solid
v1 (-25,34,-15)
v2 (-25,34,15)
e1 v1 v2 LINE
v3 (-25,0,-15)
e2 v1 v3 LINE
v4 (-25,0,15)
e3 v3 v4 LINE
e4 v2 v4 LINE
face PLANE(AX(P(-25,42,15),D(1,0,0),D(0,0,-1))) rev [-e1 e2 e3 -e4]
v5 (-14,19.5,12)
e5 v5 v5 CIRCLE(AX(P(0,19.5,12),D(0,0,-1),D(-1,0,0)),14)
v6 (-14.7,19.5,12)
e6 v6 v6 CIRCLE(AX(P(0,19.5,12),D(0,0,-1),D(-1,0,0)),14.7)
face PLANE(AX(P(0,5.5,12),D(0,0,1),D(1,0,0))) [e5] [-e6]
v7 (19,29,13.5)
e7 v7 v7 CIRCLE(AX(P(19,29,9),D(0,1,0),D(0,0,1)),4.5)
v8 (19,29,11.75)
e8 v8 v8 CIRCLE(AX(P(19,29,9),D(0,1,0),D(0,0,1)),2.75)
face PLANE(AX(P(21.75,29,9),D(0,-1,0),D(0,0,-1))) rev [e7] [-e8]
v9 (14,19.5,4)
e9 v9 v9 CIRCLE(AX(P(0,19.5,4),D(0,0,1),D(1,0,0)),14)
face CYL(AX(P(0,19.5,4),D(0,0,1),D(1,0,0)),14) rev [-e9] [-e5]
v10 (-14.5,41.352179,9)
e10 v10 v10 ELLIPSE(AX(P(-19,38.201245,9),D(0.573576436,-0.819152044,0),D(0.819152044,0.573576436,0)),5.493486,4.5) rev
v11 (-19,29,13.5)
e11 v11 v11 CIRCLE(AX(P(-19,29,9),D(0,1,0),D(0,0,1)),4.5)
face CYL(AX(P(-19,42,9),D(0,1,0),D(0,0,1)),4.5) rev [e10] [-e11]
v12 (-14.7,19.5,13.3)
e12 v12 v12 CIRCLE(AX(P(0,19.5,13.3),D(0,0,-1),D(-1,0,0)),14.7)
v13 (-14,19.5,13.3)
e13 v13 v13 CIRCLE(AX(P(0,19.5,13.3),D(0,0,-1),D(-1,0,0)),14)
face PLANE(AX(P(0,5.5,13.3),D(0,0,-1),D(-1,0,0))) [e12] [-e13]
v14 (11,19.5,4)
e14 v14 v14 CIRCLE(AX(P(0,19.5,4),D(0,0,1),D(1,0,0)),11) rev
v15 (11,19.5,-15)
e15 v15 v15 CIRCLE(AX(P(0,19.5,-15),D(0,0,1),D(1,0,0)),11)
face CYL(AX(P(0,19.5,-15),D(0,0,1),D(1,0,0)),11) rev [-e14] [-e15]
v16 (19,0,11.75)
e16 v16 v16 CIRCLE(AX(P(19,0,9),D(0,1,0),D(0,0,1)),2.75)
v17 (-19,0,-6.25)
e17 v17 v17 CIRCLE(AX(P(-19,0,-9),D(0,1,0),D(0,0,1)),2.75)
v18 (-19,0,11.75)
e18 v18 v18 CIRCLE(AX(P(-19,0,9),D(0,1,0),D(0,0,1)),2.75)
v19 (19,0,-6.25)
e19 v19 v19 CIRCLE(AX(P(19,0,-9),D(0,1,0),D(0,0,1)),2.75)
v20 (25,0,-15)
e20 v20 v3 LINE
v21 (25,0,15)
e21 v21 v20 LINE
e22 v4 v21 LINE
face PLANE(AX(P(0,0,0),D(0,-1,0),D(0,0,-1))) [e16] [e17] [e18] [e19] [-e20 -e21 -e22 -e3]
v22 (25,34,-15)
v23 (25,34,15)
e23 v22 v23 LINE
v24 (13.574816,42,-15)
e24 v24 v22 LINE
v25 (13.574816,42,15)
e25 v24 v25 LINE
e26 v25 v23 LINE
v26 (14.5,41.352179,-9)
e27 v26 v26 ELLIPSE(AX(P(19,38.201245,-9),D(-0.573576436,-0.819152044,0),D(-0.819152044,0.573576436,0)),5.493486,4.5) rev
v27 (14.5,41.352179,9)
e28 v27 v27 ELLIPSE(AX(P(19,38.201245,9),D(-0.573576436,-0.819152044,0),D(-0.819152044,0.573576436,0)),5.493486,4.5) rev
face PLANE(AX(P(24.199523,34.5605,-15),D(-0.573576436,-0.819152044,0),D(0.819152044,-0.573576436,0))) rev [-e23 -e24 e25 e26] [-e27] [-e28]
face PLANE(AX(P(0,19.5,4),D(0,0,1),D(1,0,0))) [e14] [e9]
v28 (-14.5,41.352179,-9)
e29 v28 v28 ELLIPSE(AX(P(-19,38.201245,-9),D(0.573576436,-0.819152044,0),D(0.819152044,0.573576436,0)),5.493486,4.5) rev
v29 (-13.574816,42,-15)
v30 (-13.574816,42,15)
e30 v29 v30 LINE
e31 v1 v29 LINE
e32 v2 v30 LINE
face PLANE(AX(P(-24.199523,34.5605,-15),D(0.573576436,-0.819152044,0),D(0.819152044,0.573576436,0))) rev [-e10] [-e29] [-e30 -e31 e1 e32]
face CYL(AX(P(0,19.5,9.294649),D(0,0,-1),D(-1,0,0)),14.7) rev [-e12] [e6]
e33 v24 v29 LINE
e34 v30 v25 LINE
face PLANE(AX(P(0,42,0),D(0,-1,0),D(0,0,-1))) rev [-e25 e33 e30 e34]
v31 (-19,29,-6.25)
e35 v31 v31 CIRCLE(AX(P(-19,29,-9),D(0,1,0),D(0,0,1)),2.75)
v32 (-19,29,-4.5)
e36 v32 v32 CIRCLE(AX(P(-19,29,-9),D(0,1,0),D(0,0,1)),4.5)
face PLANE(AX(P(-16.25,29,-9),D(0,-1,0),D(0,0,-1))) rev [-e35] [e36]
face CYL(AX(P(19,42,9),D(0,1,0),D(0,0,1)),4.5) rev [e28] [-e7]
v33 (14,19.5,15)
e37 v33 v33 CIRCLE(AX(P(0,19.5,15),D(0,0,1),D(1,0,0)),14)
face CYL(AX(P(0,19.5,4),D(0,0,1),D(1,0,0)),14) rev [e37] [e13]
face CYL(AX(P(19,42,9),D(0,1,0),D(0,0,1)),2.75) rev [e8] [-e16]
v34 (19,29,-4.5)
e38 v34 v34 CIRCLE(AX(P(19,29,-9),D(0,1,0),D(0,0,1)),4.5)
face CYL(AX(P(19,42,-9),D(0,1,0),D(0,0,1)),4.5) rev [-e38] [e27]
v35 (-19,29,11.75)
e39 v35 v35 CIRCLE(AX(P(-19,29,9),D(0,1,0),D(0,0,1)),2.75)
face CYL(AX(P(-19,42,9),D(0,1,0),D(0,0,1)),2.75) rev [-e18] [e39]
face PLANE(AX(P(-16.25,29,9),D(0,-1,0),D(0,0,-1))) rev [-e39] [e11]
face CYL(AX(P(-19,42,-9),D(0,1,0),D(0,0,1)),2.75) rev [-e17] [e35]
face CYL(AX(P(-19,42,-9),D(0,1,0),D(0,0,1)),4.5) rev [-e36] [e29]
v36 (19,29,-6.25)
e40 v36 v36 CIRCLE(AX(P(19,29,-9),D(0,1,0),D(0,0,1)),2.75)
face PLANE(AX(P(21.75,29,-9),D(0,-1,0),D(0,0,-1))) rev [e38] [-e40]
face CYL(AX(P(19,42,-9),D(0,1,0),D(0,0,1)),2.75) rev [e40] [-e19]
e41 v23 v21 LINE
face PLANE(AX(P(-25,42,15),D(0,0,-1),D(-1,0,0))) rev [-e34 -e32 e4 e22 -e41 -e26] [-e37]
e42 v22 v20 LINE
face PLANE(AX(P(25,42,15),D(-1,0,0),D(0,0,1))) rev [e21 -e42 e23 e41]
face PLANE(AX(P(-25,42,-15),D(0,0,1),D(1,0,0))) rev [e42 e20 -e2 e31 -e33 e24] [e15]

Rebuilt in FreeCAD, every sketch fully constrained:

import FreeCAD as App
import Part
import Sketcher
from FreeCAD import Vector
Q = App.Units.Quantity

doc = App.newDocument("Part")
body = doc.addObject("PartDesign::Body", "Body")

sketch1 = body.newObject("Sketcher::SketchObject", "Sketch")
sketch1.AttachmentSupport = (doc.getObject("XZ_Plane"), [""])
sketch1.MapMode = "FlatFace"
sketch1.addGeometry(Part.LineSegment(Vector(-25, -15, 0), Vector(-25, 15, 0)), False)
sketch1.addGeometry(Part.LineSegment(Vector(-25, 15, 0), Vector(25, 15, 0)), False)
sketch1.addGeometry(Part.LineSegment(Vector(25, 15, 0), Vector(25, -15, 0)), False)
sketch1.addGeometry(Part.LineSegment(Vector(25, -15, 0), Vector(-25, -15, 0)), False)
sketch1.addConstraint(Sketcher.Constraint("Coincident", 0, 2, 1, 1))
sketch1.addConstraint(Sketcher.Constraint("Coincident", 1, 2, 2, 1))
sketch1.addConstraint(Sketcher.Constraint("Coincident", 2, 2, 3, 1))
sketch1.addConstraint(Sketcher.Constraint("Coincident", 3, 2, 0, 1))
sketch1.addConstraint(Sketcher.Constraint("Vertical", 0))
sketch1.addConstraint(Sketcher.Constraint("Horizontal", 1))
sketch1.addConstraint(Sketcher.Constraint("Vertical", 2))
sketch1.addConstraint(Sketcher.Constraint("Horizontal", 3))
sketch1.addConstraint(Sketcher.Constraint("Symmetric", 0, 2, 2, 2, -1, 1))
sketch1.addConstraint(Sketcher.Constraint("DistanceX", 1, 1, 1, 2, 50.0))
sketch1.addConstraint(Sketcher.Constraint("DistanceY", 0, 1, 0, 2, 30.0))
pad1 = body.newObject("PartDesign::Pad", "Pad")
pad1.Profile = sketch1
pad1.Length = 42
pad1.Reversed = True

sketch2 = body.newObject("Sketcher::SketchObject", "Sketch001")
sketch2.AttachmentSupport = (doc.getObject("XY_Plane"), [""])
sketch2.MapMode = "FlatFace"
sketch2.AttachmentOffset = App.Placement(Vector(0, 0, 15), App.Rotation())
sketch2.addGeometry(Part.Circle(Vector(0, 20, 0), Vector(0, 0, 1), 11), False)
sketch2.addConstraint(Sketcher.Constraint("PointOnObject", 0, 3, -2))
sketch2.addConstraint(Sketcher.Constraint("Diameter", 0, 22.0))
sketch2.addConstraint(Sketcher.Constraint("DistanceY", -1, 1, 0, 3, 19.5))
pocket1 = body.newObject("PartDesign::Pocket", "Pocket")
pocket1.Profile = sketch2
pocket1.Type = "ThroughAll"

sketch3 = body.newObject("Sketcher::SketchObject", "Sketch002")
sketch3.AttachmentSupport = (doc.getObject("XY_Plane"), [""])
sketch3.MapMode = "FlatFace"
sketch3.AttachmentOffset = App.Placement(Vector(0, 0, 15), App.Rotation())
sketch3.addGeometry(Part.Circle(Vector(0, 20, 0), Vector(0, 0, 1), 14), False)
sketch3.addConstraint(Sketcher.Constraint("PointOnObject", 0, 3, -2))
sketch3.addConstraint(Sketcher.Constraint("Diameter", 0, 28.0))
sketch3.addConstraint(Sketcher.Constraint("DistanceY", -1, 1, 0, 3, 19.5))
pocket2 = body.newObject("PartDesign::Pocket", "Pocket001")
pocket2.Profile = sketch3
pocket2.Length = 11

sketch4 = body.newObject("Sketcher::SketchObject", "Sketch003")
sketch4.AttachmentSupport = (doc.getObject("XZ_Plane"), [""])
sketch4.MapMode = "FlatFace"
sketch4.AttachmentOffset = App.Placement(Vector(0, 0, -42), App.Rotation())
sketch4.addGeometry(Part.Circle(Vector(19, -9, 0), Vector(0, 0, 1), 2.8), False)
sketch4.addGeometry(Part.Circle(Vector(19, 9, 0), Vector(0, 0, 1), 2.8), False)
sketch4.addGeometry(Part.Circle(Vector(-19, 9, 0), Vector(0, 0, 1), 2.8), False)
sketch4.addGeometry(Part.Circle(Vector(-19, -9, 0), Vector(0, 0, 1), 2.8), False)
sketch4.addConstraint(Sketcher.Constraint("Equal", 0, 1))
sketch4.addConstraint(Sketcher.Constraint("Equal", 1, 2))
sketch4.addConstraint(Sketcher.Constraint("Equal", 2, 3))
sketch4.addConstraint(Sketcher.Constraint("Symmetric", 0, 3, 2, 3, -1, 1))
sketch4.addConstraint(Sketcher.Constraint("Symmetric", 1, 3, 3, 3, -1, 1))
sketch4.addConstraint(Sketcher.Constraint("Symmetric", 1, 3, 2, 3, -2))
sketch4.addConstraint(Sketcher.Constraint("Diameter", 0, 5.5))
sketch4.addConstraint(Sketcher.Constraint("DistanceX", -1, 1, 0, 3, 19.0))
sketch4.addConstraint(Sketcher.Constraint("DistanceY", 0, 3, -1, 1, 9.0))
doc.recompute()
hole = body.newObject("PartDesign::Hole", "Hole")
hole.Profile = sketch4
hole.ThreadType = "None"
hole.Diameter = 5.5
hole.DepthType = "ThroughAll"
hole.HoleCutType = "Counterbore"
hole.HoleCutDiameter = 9
hole.HoleCutDepth = 13
hole.Reversed = True

sketch5 = body.newObject("Sketcher::SketchObject", "Sketch004")
sketch5.AttachmentSupport = (doc.getObject("YZ_Plane"), [""])
sketch5.MapMode = "FlatFace"
sketch5.addGeometry(Part.LineSegment(Vector(5.5, 13.3, 0), Vector(4.8, 13.3, 0)), False)
sketch5.addGeometry(Part.LineSegment(Vector(4.8, 13.3, 0), Vector(4.8, 12, 0)), False)
sketch5.addGeometry(Part.LineSegment(Vector(4.8, 12, 0), Vector(5.5, 12, 0)), False)
sketch5.addGeometry(Part.LineSegment(Vector(5.5, 12, 0), Vector(5.5, 13.3, 0)), False)
sketch5.addGeometry(Part.LineSegment(Vector(19.5, 12, 0), Vector(19.5, 13.3, 0)), True)
sketch5.addConstraint(Sketcher.Constraint("Coincident", 0, 2, 1, 1))
sketch5.addConstraint(Sketcher.Constraint("Coincident", 1, 2, 2, 1))
sketch5.addConstraint(Sketcher.Constraint("Coincident", 2, 2, 3, 1))
sketch5.addConstraint(Sketcher.Constraint("Coincident", 3, 2, 0, 1))
sketch5.addConstraint(Sketcher.Constraint("Horizontal", 0))
sketch5.addConstraint(Sketcher.Constraint("Vertical", 1))
sketch5.addConstraint(Sketcher.Constraint("Horizontal", 2))
sketch5.addConstraint(Sketcher.Constraint("Vertical", 3))
sketch5.addConstraint(Sketcher.Constraint("Vertical", 4))
sketch5.addConstraint(Sketcher.Constraint("Horizontal", 2, 2, 4, 1))
sketch5.addConstraint(Sketcher.Constraint("Horizontal", 3, 2, 4, 2))
sketch5.addConstraint(Sketcher.Constraint("DistanceX", 0, 2, 0, 1, 0.7))
sketch5.addConstraint(Sketcher.Constraint("DistanceY", 1, 2, 1, 1, 1.3))
sketch5.addConstraint(Sketcher.Constraint("DistanceY", -1, 1, 1, 2, 12.0))
sketch5.addConstraint(Sketcher.Constraint("DistanceX", 2, 2, 4, 1, 14.0))
sketch5.addConstraint(Sketcher.Constraint("DistanceX", -1, 1, 0, 2, 4.8))
groove = body.newObject("PartDesign::Groove", "Groove")
groove.Profile = sketch5
groove.ReferenceAxis = (sketch5, ["Axis0"])
groove.Angle = 360

sketch6 = body.newObject("Sketcher::SketchObject", "Sketch005")
sketch6.AttachmentSupport = (doc.getObject("XY_Plane"), [""])
sketch6.MapMode = "FlatFace"
sketch6.AttachmentOffset = App.Placement(Vector(0, 0, 15), App.Rotation())
sketch6.addGeometry(Part.LineSegment(Vector(-25, 34, 0), Vector(-14, 42, 0)), False)
sketch6.addGeometry(Part.LineSegment(Vector(-14, 42, 0), Vector(-25, 42, 0)), False)
sketch6.addGeometry(Part.LineSegment(Vector(-25, 42, 0), Vector(-25, 34, 0)), False)
sketch6.addGeometry(Part.LineSegment(Vector(25, 42, 0), Vector(14, 42, 0)), False)
sketch6.addGeometry(Part.LineSegment(Vector(14, 42, 0), Vector(25, 34, 0)), False)
sketch6.addGeometry(Part.LineSegment(Vector(25, 34, 0), Vector(25, 42, 0)), False)
sketch6.addConstraint(Sketcher.Constraint("Coincident", 0, 2, 1, 1))
sketch6.addConstraint(Sketcher.Constraint("Coincident", 1, 2, 2, 1))
sketch6.addConstraint(Sketcher.Constraint("Coincident", 2, 2, 0, 1))
sketch6.addConstraint(Sketcher.Constraint("Coincident", 3, 2, 4, 1))
sketch6.addConstraint(Sketcher.Constraint("Coincident", 4, 2, 5, 1))
sketch6.addConstraint(Sketcher.Constraint("Coincident", 5, 2, 3, 1))
sketch6.addConstraint(Sketcher.Constraint("Horizontal", 1))
sketch6.addConstraint(Sketcher.Constraint("Vertical", 2))
sketch6.addConstraint(Sketcher.Constraint("Horizontal", 3))
sketch6.addConstraint(Sketcher.Constraint("Vertical", 5))
sketch6.addConstraint(Sketcher.Constraint("Symmetric", 0, 2, 3, 2, -2))
sketch6.addConstraint(Sketcher.Constraint("Symmetric", 2, 2, 4, 2, -2))
sketch6.addConstraint(Sketcher.Constraint("DistanceY", 2, 2, 2, 1, 8.0))
sketch6.addConstraint(Sketcher.Constraint("Angle", 0, Q("35 deg")))
sketch6.addConstraint(Sketcher.Constraint("DistanceY", -1, 1, 0, 2, 42.0))
sketch6.addConstraint(Sketcher.Constraint("DistanceX", 1, 2, -1, 1, 25.0))
pocket3 = body.newObject("PartDesign::Pocket", "Pocket002")
pocket3.Profile = sketch6
pocket3.Type = "ThroughAll"

doc.recompute()
